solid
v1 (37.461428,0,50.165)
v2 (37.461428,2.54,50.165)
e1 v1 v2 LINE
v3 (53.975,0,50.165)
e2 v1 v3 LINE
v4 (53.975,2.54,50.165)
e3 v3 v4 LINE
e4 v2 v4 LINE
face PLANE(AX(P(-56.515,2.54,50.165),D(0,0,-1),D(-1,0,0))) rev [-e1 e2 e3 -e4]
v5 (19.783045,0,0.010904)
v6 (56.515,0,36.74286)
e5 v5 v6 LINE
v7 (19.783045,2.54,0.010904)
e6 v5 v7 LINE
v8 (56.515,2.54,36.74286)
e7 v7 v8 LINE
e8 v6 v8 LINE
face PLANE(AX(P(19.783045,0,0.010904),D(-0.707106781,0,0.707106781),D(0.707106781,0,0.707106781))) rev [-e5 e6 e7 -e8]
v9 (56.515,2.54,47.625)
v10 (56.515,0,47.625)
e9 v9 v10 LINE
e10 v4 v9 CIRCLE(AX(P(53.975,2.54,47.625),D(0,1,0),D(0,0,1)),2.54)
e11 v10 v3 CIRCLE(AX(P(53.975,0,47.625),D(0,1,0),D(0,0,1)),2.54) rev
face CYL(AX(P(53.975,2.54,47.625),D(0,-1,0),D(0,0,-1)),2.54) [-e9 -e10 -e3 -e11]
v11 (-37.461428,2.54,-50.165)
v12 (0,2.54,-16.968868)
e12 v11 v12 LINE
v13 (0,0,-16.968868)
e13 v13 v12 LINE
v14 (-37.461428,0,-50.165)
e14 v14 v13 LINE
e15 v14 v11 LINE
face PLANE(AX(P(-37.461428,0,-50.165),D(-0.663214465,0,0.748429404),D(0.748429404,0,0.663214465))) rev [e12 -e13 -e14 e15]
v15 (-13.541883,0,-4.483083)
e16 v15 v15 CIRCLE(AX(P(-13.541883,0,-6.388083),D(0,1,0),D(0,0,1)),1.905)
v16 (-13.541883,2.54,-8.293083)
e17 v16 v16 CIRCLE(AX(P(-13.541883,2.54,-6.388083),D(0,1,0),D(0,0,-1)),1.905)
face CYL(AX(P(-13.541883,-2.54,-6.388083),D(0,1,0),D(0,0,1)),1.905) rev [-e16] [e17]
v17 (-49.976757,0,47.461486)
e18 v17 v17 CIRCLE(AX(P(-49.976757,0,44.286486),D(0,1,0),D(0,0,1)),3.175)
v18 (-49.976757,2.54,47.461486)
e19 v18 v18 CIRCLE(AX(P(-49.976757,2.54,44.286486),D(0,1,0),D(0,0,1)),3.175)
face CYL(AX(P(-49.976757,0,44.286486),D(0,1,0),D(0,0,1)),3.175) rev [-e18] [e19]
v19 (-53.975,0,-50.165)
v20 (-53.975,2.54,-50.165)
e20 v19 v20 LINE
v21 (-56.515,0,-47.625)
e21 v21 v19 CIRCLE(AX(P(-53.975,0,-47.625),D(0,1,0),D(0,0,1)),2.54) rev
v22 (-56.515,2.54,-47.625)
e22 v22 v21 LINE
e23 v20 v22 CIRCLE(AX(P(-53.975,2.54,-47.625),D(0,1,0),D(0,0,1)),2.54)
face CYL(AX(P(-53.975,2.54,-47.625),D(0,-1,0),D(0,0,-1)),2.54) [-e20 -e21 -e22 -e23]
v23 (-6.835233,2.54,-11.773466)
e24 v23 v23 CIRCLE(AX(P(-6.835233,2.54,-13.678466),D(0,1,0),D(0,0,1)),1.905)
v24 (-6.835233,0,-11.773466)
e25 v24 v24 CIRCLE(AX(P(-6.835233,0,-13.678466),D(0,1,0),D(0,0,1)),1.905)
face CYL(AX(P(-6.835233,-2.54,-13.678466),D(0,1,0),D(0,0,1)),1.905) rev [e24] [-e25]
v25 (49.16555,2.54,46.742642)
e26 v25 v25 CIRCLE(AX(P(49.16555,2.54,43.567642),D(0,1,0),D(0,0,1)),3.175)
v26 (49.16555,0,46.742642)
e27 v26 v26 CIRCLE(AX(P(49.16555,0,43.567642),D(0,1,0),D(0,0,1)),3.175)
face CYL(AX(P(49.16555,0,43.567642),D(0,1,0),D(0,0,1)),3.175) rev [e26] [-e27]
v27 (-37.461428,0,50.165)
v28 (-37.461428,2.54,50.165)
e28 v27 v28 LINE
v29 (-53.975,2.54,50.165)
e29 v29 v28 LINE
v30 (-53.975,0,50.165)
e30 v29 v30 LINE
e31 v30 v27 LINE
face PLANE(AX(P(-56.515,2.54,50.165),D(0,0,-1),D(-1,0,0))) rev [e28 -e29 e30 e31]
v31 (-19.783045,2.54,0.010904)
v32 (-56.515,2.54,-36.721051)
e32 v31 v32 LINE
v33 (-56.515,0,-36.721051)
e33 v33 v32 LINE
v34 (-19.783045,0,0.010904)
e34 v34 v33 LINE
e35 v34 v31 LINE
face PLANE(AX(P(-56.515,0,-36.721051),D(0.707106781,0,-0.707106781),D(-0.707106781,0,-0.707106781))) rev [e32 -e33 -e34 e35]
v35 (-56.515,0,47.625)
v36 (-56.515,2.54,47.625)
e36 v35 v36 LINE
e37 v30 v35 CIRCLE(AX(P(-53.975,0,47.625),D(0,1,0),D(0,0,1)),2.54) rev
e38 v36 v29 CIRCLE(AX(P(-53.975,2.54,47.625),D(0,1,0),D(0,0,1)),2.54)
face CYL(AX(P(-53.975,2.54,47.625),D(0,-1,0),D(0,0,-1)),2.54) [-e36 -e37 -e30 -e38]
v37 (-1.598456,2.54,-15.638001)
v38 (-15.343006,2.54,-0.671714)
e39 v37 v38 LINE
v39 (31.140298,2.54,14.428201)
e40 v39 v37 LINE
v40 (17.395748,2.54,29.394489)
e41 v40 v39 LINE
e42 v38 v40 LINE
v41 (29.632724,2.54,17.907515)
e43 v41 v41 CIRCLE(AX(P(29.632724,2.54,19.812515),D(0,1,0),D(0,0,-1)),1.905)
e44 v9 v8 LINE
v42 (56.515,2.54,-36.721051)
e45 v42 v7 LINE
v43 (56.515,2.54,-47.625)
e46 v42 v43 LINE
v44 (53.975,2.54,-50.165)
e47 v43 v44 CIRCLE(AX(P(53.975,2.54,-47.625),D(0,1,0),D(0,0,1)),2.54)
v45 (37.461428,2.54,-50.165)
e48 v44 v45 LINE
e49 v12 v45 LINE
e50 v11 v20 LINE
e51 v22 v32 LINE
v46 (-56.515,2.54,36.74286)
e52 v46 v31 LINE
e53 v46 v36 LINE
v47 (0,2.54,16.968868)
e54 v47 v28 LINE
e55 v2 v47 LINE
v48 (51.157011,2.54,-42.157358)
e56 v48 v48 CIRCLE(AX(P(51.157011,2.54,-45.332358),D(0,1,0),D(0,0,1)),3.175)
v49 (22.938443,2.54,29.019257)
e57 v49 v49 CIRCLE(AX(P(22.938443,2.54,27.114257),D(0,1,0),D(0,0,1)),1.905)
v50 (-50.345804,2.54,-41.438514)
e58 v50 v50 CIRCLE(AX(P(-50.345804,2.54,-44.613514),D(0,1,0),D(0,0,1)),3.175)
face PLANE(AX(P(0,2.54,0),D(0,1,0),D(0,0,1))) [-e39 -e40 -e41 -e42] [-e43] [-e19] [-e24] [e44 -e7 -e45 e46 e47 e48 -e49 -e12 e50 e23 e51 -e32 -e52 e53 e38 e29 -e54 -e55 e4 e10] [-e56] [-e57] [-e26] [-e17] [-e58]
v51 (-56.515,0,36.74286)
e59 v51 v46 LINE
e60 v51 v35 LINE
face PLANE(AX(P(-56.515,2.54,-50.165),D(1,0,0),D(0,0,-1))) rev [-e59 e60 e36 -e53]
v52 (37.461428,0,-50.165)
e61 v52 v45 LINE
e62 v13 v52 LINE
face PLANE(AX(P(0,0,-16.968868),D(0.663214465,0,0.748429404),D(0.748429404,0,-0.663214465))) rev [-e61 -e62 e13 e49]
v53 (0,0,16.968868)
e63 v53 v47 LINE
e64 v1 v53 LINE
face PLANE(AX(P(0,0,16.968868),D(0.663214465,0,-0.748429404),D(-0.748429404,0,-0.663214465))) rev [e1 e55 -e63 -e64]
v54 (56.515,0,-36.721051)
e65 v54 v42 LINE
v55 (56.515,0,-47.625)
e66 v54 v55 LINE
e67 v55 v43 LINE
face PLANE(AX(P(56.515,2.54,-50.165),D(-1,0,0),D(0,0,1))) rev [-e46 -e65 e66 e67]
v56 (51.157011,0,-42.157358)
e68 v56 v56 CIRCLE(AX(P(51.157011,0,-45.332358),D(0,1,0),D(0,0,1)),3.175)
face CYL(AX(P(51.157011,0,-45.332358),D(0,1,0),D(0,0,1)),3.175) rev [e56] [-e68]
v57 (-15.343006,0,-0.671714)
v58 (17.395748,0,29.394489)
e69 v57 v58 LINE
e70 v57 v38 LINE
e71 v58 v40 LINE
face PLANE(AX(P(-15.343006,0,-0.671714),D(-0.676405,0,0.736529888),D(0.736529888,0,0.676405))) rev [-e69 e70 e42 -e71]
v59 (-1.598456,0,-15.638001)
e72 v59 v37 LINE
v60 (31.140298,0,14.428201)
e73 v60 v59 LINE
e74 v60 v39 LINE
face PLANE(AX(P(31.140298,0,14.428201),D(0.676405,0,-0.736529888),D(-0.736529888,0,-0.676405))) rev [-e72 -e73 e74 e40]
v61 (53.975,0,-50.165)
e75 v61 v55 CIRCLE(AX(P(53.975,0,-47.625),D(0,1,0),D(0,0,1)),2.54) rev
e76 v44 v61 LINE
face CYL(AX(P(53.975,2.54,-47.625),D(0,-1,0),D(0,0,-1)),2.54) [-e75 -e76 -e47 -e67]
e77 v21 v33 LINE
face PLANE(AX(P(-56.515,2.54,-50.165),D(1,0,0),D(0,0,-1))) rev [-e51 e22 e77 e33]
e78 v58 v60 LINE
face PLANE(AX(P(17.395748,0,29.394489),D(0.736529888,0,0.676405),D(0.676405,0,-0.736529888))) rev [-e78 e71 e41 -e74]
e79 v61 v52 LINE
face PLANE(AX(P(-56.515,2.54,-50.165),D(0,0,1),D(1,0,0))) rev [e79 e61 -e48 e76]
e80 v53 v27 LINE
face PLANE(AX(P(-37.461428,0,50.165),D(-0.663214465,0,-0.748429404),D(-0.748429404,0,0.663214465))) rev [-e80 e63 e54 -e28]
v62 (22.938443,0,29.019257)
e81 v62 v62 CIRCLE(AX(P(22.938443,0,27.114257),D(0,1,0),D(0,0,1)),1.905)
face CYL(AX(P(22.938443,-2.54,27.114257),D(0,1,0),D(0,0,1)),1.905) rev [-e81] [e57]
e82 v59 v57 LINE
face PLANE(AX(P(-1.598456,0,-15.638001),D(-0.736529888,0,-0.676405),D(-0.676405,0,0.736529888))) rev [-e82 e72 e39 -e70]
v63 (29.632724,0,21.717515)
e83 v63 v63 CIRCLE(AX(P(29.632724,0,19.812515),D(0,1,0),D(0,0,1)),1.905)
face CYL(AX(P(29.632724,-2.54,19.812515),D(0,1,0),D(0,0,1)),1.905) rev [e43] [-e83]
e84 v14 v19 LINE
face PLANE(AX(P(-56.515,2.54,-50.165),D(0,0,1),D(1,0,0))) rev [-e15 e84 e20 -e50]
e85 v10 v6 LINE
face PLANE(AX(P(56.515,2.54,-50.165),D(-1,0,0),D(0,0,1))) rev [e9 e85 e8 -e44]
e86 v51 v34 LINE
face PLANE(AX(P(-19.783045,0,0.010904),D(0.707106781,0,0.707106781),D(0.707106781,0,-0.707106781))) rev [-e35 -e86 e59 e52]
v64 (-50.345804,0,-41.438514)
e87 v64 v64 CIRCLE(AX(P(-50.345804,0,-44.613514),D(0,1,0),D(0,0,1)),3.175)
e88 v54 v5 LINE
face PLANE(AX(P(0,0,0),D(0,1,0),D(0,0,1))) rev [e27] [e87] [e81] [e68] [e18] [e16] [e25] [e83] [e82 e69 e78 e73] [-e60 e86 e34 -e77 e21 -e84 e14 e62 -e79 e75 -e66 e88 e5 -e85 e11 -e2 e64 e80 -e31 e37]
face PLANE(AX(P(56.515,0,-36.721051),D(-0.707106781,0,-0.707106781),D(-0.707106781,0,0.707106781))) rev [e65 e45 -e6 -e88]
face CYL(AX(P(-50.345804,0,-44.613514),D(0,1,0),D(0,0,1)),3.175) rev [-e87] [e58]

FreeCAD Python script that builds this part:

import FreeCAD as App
import Part
import Sketcher
from FreeCAD import Vector
Q = App.Units.Quantity


def edges_at(feature, points):
    """Names of the edges that pass closest to the given points."""
    edges = feature.Shape.Edges
    near = lambda p: min(range(len(edges)), key=lambda i: edges[i].distToShape(Part.Vertex(*p))[0])
    return sorted({f"Edge{near(p) + 1}" for p in points})

doc = App.newDocument("Part")
body = doc.addObject("PartDesign::Body", "Body")

# Sketch on XZ plane
sketch1 = body.newObject("Sketcher::SketchObject", "Sketch")
sketch1.AttachmentSupport = (doc.getObject("XZ_Plane"), [""])
sketch1.MapMode = "FlatFace"
sketch1.addGeometry(Part.LineSegment(Vector(-56.515, -50.165, 0), Vector(-56.515, 50.165, 0)), False)
sketch1.addGeometry(Part.LineSegment(Vector(-56.515, 50.165, 0), Vector(56.515, 50.165, 0)), False)
sketch1.addGeometry(Part.LineSegment(Vector(56.515, 50.165, 0), Vector(56.515, -50.165, 0)), False)
sketch1.addGeometry(Part.LineSegment(Vector(56.515, -50.165, 0), Vector(-56.515, -50.165, 0)), False)
sketch1.addConstraint(Sketcher.Constraint("Coincident", 0, 2, 1, 1))
sketch1.addConstraint(Sketcher.Constraint("Coincident", 1, 2, 2, 1))
sketch1.addConstraint(Sketcher.Constraint("Coincident", 2, 2, 3, 1))
sketch1.addConstraint(Sketcher.Constraint("Coincident", 3, 2, 0, 1))
sketch1.addConstraint(Sketcher.Constraint("Vertical", 0))
sketch1.addConstraint(Sketcher.Constraint("Horizontal", 1))
sketch1.addConstraint(Sketcher.Constraint("Vertical", 2))
sketch1.addConstraint(Sketcher.Constraint("Horizontal", 3))
sketch1.addConstraint(Sketcher.Constraint("Symmetric", 0, 2, 2, 2, -1, 1))
sketch1.addConstraint(Sketcher.Constraint("DistanceX", 1, 1, 1, 2, Q("4.45 in")))
sketch1.addConstraint(Sketcher.Constraint("DistanceY", 0, 1, 0, 2, Q("3.95 in")))
pad1 = body.newObject("PartDesign::Pad", "Pad")
pad1.Profile = sketch1
pad1.Length = Q("0.1 in")
pad1.Reversed = True
doc.recompute()

fillet = body.newObject("PartDesign::Fillet", "Fillet")
fillet.Base = (pad1, edges_at(pad1, [(-56.515, 1.27, -50.165)]))
fillet.Radius = Q("0.1 in")
doc.recompute()

fillet2 = body.newObject("PartDesign::Fillet", "Fillet001")
fillet2.Base = (fillet, edges_at(fillet, [(56.515, 1.27, 50.165), (-56.515, 1.27, 50.165), (56.515, 1.27, -50.165)]))
fillet2.Radius = Q("0.1 in")

# Sketch on XZ plane
sketch2 = body.newObject("Sketcher::SketchObject", "Sketch001")
sketch2.AttachmentSupport = (doc.getObject("XZ_Plane"), [""])
sketch2.MapMode = "FlatFace"
sketch2.AttachmentOffset = App.Placement(Vector(0, 0, -0.1 * 25.4), App.Rotation())
sketch2.addGeometry(Part.LineSegment(Vector(-37.461428, -50.165, 0), Vector(0, -16.968868, 0)), False)
sketch2.addGeometry(Part.LineSegment(Vector(0, -16.968868, 0), Vector(37.461428, -50.165, 0)), False)
sketch2.addGeometry(Part.LineSegment(Vector(37.461428, -50.165, 0), Vector(-37.461428, -50.165, 0)), False)
sketch2.addGeometry(Part.LineSegment(Vector(37.461428, 50.165, 0), Vector(0, 16.968868, 0)), False)
sketch2.addGeometry(Part.LineSegment(Vector(0, 16.968868, 0), Vector(-37.461428, 50.165, 0)), False)
sketch2.addGeometry(Part.LineSegment(Vector(-37.461428, 50.165, 0), Vector(37.461428, 50.165, 0)), False)
sketch2.addGeometry(Part.LineSegment(Vector(-19.783045, 0.010904, 0), Vector(-56.515, -36.721051, 0)), False)
sketch2.addGeometry(Part.LineSegment(Vector(-56.515, -36.721051, 0), Vector(-56.515, 36.74286, 0)), False)
sketch2.addGeometry(Part.LineSegment(Vector(-56.515, 36.74286, 0), Vector(-19.783045, 0.010904, 0)), False)
sketch2.addGeometry(Part.LineSegment(Vector(19.783045, 0.010904, 0), Vector(56.515, 36.74286, 0)), False)
sketch2.addGeometry(Part.LineSegment(Vector(56.515, 36.74286, 0), Vector(56.515, -36.721051, 0)), False)
sketch2.addGeometry(Part.LineSegment(Vector(56.515, -36.721051, 0), Vector(19.783045, 0.010904, 0)), False)
sketch2.addConstraint(Sketcher.Constraint("Coincident", 0, 2, 1, 1))
sketch2.addConstraint(Sketcher.Constraint("Coincident", 1, 2, 2, 1))
sketch2.addConstraint(Sketcher.Constraint("Coincident", 2, 2, 0, 1))
sketch2.addConstraint(Sketcher.Constraint("Coincident", 3, 2, 4, 1))
sketch2.addConstraint(Sketcher.Constraint("Coincident", 4, 2, 5, 1))
sketch2.addConstraint(Sketcher.Constraint("Coincident", 5, 2, 3, 1))
sketch2.addConstraint(Sketcher.Constraint("Coincident", 6, 2, 7, 1))
sketch2.addConstraint(Sketcher.Constraint("Coincident", 7, 2, 8, 1))
sketch2.addConstraint(Sketcher.Constraint("Coincident", 8, 2, 6, 1))
sketch2.addConstraint(Sketcher.Constraint("Coincident", 9, 2, 10, 1))
sketch2.addConstraint(Sketcher.Constraint("Coincident", 10, 2, 11, 1))
sketch2.addConstraint(Sketcher.Constraint("Coincident", 11, 2, 9, 1))
sketch2.addConstraint(Sketcher.Constraint("Horizontal", 2))
sketch2.addConstraint(Sketcher.Constraint("Horizontal", 5))
sketch2.addConstraint(Sketcher.Constraint("Vertical", 7))
sketch2.addConstraint(Sketcher.Constraint("Vertical", 10))
sketch2.addConstraint(Sketcher.Constraint("Symmetric", 0, 2, 3, 2, -1, 1))
sketch2.addConstraint(Sketcher.Constraint("Symmetric", 1, 2, 4, 2, -1, 1))
sketch2.addConstraint(Sketcher.Constraint("Symmetric", 7, 2, 9, 2, -2))
sketch2.addConstraint(Sketcher.Constraint("Symmetric", 8, 2, 11, 2, -2))
sketch2.addConstraint(Sketcher.Constraint("PointOnObject", 0, 2, -2))
sketch2.addConstraint(Sketcher.Constraint("Parallel", 0, 3))
sketch2.addConstraint(Sketcher.Constraint("Perpendicular", 6, 8))
sketch2.addConstraint(Sketcher.Constraint("Perpendicular", 8, 9))
sketch2.addConstraint(Sketcher.Constraint("Perpendicular", 9, 11))
sketch2.addConstraint(Sketcher.Constraint("Vertical", 2, 2, 4, 2))
sketch2.addConstraint(Sketcher.Constraint("DistanceY", 2, 2, 4, 2, Q("3.95 in")))
sketch2.addConstraint(Sketcher.Constraint("DistanceX", 6, 2, -1, 1, Q("2.225 in")))
sketch2.addConstraint(Sketcher.Constraint("DistanceY", 7, 1, 7, 2, 73.463911))
sketch2.addConstraint(Sketcher.Constraint("Distance", 0, 50.053389))
sketch2.addConstraint(Sketcher.Constraint("DistanceX", 2, 2, 2, 1, 74.922856))
sketch2.addConstraint(Sketcher.Constraint("DistanceY", 6, 2, -1, 1, 36.721051))
pocket1 = body.newObject("PartDesign::Pocket", "Pocket")
pocket1.Profile = sketch2
pocket1.Type = "ThroughAll"
pocket1.Reversed = True

# Sketch on XZ plane
sketch3 = body.newObject("Sketcher::SketchObject", "Sketch002")
sketch3.AttachmentSupport = (doc.getObject("XZ_Plane"), [""])
sketch3.MapMode = "FlatFace"
sketch3.AttachmentOffset = App.Placement(Vector(0, 0, -0.1 * 25.4), App.Rotation())
sketch3.addGeometry(Part.Circle(Vector(-50.345804, -44.613514, 0), Vector(0, 0, 1), 3.175), False)
sketch3.addGeometry(Part.Circle(Vector(49.16555, 43.567642, 0), Vector(0, 0, 1), 3.175), False)
sketch3.addGeometry(Part.Circle(Vector(51.157011, -45.332358, 0), Vector(0, 0, 1), 3.175), False)
sketch3.addGeometry(Part.Circle(Vector(-49.976757, 44.286486, 0), Vector(0, 0, 1), 3.175), False)
sketch3.addConstraint(Sketcher.Constraint("Equal", 0, 1))
sketch3.addConstraint(Sketcher.Constraint("Equal", 1, 2))
sketch3.addConstraint(Sketcher.Constraint("Equal", 2, 3))
sketch3.addConstraint(Sketcher.Constraint("Diameter", 0, Q("0.25 in")))
sketch3.addConstraint(Sketcher.Constraint("DistanceY", 2, 3, 1, 3, Q("3.5 in")))
sketch3.addConstraint(Sketcher.Constraint("DistanceY", 0, 3, 3, 3, Q("3.5 in")))
sketch3.addConstraint(Sketcher.Constraint("DistanceX", -1, 1, 1, 3, 49.16555))
sketch3.addConstraint(Sketcher.Constraint("DistanceY", -1, 1, 1, 3, 43.567642))
sketch3.addConstraint(Sketcher.Constraint("DistanceX", -1, 1, 2, 3, 51.157011))
sketch3.addConstraint(Sketcher.Constraint("DistanceX", 3, 3, 2, 3, 101.133769))
sketch3.addConstraint(Sketcher.Constraint("DistanceX", 0, 3, -1, 1, 50.345804))
sketch3.addConstraint(Sketcher.Constraint("DistanceY", 0, 3, -1, 1, 44.613514))
pocket2 = body.newObject("PartDesign::Pocket", "Pocket001")
pocket2.Profile = sketch3
pocket2.Type = "ThroughAll"
pocket2.Reversed = True

# Sketch on XZ plane
sketch4 = body.newObject("Sketcher::SketchObject", "Sketch003")
sketch4.AttachmentSupport = (doc.getObject("XZ_Plane"), [""])
sketch4.MapMode = "FlatFace"
sketch4.AttachmentOffset = App.Placement(Vector(0, 0, -0.1 * 25.4), App.Rotation())
sketch4.addGeometry(Part.LineSegment(Vector(-15.343006, -0.671714, 0), Vector(17.395748, 29.394489, 0)), False)
sketch4.addGeometry(Part.LineSegment(Vector(17.395748, 29.394489, 0), Vector(31.140298, 14.428201, 0)), False)
sketch4.addGeometry(Part.LineSegment(Vector(31.140298, 14.428201, 0), Vector(-1.598456, -15.638001, 0)), False)
sketch4.addGeometry(Part.LineSegment(Vector(-1.598456, -15.638001, 0), Vector(-15.343006, -0.671714, 0)), False)
sketch4.addConstraint(Sketcher.Constraint("Coincident", 0, 2, 1, 1))
sketch4.addConstraint(Sketcher.Constraint("Coincident", 1, 2, 2, 1))
sketch4.addConstraint(Sketcher.Constraint("Coincident", 2, 2, 3, 1))
sketch4.addConstraint(Sketcher.Constraint("Coincident", 3, 2, 0, 1))
sketch4.addConstraint(Sketcher.Constraint("Perpendicular", 0, 1))
sketch4.addConstraint(Sketcher.Constraint("Perpendicular", 1, 2))
sketch4.addConstraint(Sketcher.Constraint("Perpendicular", 2, 3))
sketch4.addConstraint(Sketcher.Constraint("Distance", 1, Q("0.8 in")))
sketch4.addConstraint(Sketcher.Constraint("Distance", 0, Q("1.75 in")))
sketch4.addConstraint(Sketcher.Constraint("DistanceY", -1, 1, 1, 2, 14.428201))
sketch4.addConstraint(Sketcher.Constraint("DistanceY", 2, 2, -1, 1, 15.638001))
sketch4.addConstraint(Sketcher.Constraint("DistanceX", -1, 1, 0, 2, 17.395748))
pocket3 = body.newObject("PartDesign::Pocket", "Pocket002")
pocket3.Profile = sketch4
pocket3.Type = "ThroughAll"
pocket3.Reversed = True

# Sketch on XZ plane
sketch5 = body.newObject("Sketcher::SketchObject", "Sketch004")
sketch5.AttachmentSupport = (doc.getObject("XZ_Plane"), [""])
sketch5.MapMode = "FlatFace"
sketch5.AttachmentOffset = App.Placement(Vector(0, 0, -0.1 * 25.4), App.Rotation())
sketch5.addGeometry(Part.Circle(Vector(22.938443, 27.114257, 0), Vector(0, 0, 1), 1.905), False)
sketch5.addGeometry(Part.Circle(Vector(29.632724, 19.812515, 0), Vector(0, 0, 1), 1.905), False)
sketch5.addGeometry(Part.Circle(Vector(-13.541883, -6.388083, 0), Vector(0, 0, 1), 1.905), False)
sketch5.addGeometry(Part.Circle(Vector(-6.835233, -13.678466, 0), Vector(0, 0, 1), 1.905), False)
sketch5.addConstraint(Sketcher.Constraint("Equal", 0, 1))
sketch5.addConstraint(Sketcher.Constraint("Equal", 1, 2))
sketch5.addConstraint(Sketcher.Constraint("Equal", 2, 3))
sketch5.addConstraint(Sketcher.Constraint("Diameter", 0, Q("0.15 in")))
sketch5.addConstraint(Sketcher.Constraint("DistanceY", 2, 3, 1, 3, 26.200598))
sketch5.addConstraint(Sketcher.Constraint("DistanceX", 0, 3, 1, 3, 6.694282))
sketch5.addConstraint(Sketcher.Constraint("DistanceY", 1, 3, 0, 3, 7.301741))
sketch5.addConstraint(Sketcher.Constraint("DistanceX", 2, 3, 3, 3, 6.706649))
sketch5.addConstraint(Sketcher.Constraint("DistanceY", 3, 3, 1, 3, 33.490982))
sketch5.addConstraint(Sketcher.Constraint("DistanceX", -1, 1, 0, 3, 22.938443))
sketch5.addConstraint(Sketcher.Constraint("DistanceY", -1, 1, 0, 3, 27.114257))
sketch5.addConstraint(Sketcher.Constraint("DistanceX", 2, 3, -1, 1, 13.541883))
pocket4 = body.newObject("PartDesign::Pocket", "Pocket003")
pocket4.Profile = sketch5
pocket4.Length = Q("0.2 in")
pocket4.Reversed = True

doc.recompute()
